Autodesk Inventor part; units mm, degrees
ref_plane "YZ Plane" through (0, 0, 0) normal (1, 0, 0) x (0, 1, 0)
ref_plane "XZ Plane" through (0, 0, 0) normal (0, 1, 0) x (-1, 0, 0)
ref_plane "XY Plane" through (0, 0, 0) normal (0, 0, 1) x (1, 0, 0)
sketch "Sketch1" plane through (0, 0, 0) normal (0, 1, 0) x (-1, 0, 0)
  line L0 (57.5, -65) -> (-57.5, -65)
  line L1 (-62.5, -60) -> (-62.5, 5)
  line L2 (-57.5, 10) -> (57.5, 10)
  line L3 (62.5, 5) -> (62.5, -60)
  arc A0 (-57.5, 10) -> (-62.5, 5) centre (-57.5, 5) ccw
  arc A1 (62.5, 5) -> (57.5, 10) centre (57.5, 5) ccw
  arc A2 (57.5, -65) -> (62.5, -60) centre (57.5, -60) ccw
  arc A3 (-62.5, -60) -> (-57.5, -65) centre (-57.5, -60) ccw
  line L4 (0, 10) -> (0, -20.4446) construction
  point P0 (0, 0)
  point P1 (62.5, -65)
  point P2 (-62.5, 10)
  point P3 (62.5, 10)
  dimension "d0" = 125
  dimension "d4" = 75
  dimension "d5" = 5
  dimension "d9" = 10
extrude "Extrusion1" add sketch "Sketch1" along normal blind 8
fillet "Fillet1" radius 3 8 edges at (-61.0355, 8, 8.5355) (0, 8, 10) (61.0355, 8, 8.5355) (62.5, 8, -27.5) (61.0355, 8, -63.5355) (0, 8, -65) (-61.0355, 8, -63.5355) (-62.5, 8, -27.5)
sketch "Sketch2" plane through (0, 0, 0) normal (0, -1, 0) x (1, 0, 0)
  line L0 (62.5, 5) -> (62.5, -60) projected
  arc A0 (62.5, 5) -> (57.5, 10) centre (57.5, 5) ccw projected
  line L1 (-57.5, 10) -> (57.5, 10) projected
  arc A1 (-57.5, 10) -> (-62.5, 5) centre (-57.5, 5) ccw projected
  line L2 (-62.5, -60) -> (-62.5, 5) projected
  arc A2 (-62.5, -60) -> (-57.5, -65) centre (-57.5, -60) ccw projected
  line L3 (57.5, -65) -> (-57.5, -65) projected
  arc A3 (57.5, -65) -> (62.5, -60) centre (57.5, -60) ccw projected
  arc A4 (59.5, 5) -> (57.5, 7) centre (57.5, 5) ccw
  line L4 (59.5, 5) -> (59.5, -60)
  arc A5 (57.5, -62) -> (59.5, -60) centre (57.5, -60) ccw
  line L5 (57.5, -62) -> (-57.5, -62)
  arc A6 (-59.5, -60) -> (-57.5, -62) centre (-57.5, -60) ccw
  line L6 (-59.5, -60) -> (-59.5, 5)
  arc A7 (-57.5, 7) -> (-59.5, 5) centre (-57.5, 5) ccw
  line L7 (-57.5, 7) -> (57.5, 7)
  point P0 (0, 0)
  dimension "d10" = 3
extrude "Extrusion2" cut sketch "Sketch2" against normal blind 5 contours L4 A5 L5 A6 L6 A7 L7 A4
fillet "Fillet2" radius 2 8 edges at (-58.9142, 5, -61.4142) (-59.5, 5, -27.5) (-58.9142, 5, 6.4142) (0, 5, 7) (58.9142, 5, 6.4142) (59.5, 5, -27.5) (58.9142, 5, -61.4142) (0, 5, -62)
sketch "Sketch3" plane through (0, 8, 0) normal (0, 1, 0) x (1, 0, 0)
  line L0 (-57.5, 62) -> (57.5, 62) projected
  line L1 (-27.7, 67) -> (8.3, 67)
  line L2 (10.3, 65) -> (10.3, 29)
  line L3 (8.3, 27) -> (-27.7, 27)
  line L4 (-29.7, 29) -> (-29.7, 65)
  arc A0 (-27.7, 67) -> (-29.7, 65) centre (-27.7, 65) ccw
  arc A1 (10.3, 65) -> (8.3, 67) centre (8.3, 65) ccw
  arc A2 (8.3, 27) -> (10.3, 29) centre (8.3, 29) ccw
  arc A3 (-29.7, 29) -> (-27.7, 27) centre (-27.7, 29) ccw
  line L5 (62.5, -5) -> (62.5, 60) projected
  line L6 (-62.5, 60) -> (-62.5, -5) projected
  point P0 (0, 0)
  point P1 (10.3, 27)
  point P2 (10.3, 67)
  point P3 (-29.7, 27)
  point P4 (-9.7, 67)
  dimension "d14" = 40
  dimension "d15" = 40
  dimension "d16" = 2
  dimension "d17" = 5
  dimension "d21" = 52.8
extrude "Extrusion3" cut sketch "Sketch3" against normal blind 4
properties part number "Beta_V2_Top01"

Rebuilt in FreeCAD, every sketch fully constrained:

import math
import FreeCAD as App
import Part
import Sketcher


def edges_at(feature, points):
    """Names of the edges that pass closest to the given points."""
    edges = feature.Shape.Edges
    near = lambda p: min(range(len(edges)), key=lambda i: edges[i].distToShape(Part.Vertex(*p))[0])
    return sorted({f"Edge{near(p) + 1}" for p in points})

doc = App.newDocument("Part")
body = doc.addObject("PartDesign::Body", "Body")

sketch1 = body.newObject("Sketcher::SketchObject", "Sketch")
sketch1.AttachmentSupport = (doc.getObject("XZ_Plane"), [""])
sketch1.MapMode = "FlatFace"
sketch1.addGeometry(Part.LineSegment(App.Vector(58, -65, 0), App.Vector(-58, -65, 0)), False)
sketch1.addGeometry(Part.ArcOfCircle(Part.Circle(App.Vector(-58, -60, 0), App.Vector(0, 0, 1), 5), math.radians(180), math.radians(270)), False)
sketch1.addGeometry(Part.LineSegment(App.Vector(-62, -60, 0), App.Vector(-62, 5, 0)), False)
sketch1.addGeometry(Part.ArcOfCircle(Part.Circle(App.Vector(-58, 5, 0), App.Vector(0, 0, 1), 5), math.radians(90), math.radians(180)), False)
sketch1.addGeometry(Part.LineSegment(App.Vector(-58, 10, 0), App.Vector(58, 10, 0)), False)
sketch1.addGeometry(Part.ArcOfCircle(Part.Circle(App.Vector(58, 5, 0), App.Vector(0, 0, 1), 5), math.radians(0), math.radians(90)), False)
sketch1.addGeometry(Part.LineSegment(App.Vector(62, 5, 0), App.Vector(62, -60, 0)), False)
sketch1.addGeometry(Part.ArcOfCircle(Part.Circle(App.Vector(58, -60, 0), App.Vector(0, 0, 1), 5), math.radians(-90), math.radians(0)), False)
sketch1.addConstraint(Sketcher.Constraint("Tangent", 0, 2, 1, 2))
sketch1.addConstraint(Sketcher.Constraint("Tangent", 1, 1, 2, 1))
sketch1.addConstraint(Sketcher.Constraint("Tangent", 2, 2, 3, 2))
sketch1.addConstraint(Sketcher.Constraint("Tangent", 3, 1, 4, 1))
sketch1.addConstraint(Sketcher.Constraint("Tangent", 4, 2, 5, 2))
sketch1.addConstraint(Sketcher.Constraint("Tangent", 5, 1, 6, 1))
sketch1.addConstraint(Sketcher.Constraint("Tangent", 6, 2, 7, 2))
sketch1.addConstraint(Sketcher.Constraint("Tangent", 7, 1, 0, 1))
sketch1.addConstraint(Sketcher.Constraint("Horizontal", 0))
sketch1.addConstraint(Sketcher.Constraint("Vertical", 2))
sketch1.addConstraint(Sketcher.Constraint("Horizontal", 4))
sketch1.addConstraint(Sketcher.Constraint("Vertical", 6))
sketch1.addConstraint(Sketcher.Constraint("Equal", 1, 3))
sketch1.addConstraint(Sketcher.Constraint("Equal", 3, 5))
sketch1.addConstraint(Sketcher.Constraint("Equal", 5, 7))
sketch1.addConstraint(Sketcher.Constraint("Radius", 1, 5.0))
sketch1.addConstraint(Sketcher.Constraint("DistanceY", -1, 1, 3, 3, 5.0))
sketch1.addConstraint(Sketcher.Constraint("DistanceY", 0, 2, 3, 1, 75.0))
sketch1.addConstraint(Sketcher.Constraint("DistanceX", 0, 2, 0, 1, 115.0))
sketch1.addConstraint(Sketcher.Constraint("DistanceX", 1, 3, -1, 1, 57.5))
pad1 = body.newObject("PartDesign::Pad", "Pad")
pad1.Profile = sketch1
pad1.Length = 8
pad1.Reversed = True
doc.recompute()

fillet = body.newObject("PartDesign::Fillet", "Fillet")
fillet.Base = (pad1, edges_at(pad1, [
    (-61.035, 8, 8.536),
    (0, 8, 10),
    (61.035, 8, 8.536),
    (62.5, 8, -27.5),
    (61.035, 8, -63.535),
    (0, 8, -65),
    (-61.035, 8, -63.535),
    (-62.5, 8, -27.5),
]))
fillet.Radius = 3

sketch2 = body.newObject("Sketcher::SketchObject", "Sketch001")
sketch2.AttachmentSupport = (doc.getObject("XZ_Plane"), [""])
sketch2.MapMode = "FlatFace"
sketch2.addGeometry(Part.LineSegment(App.Vector(59.5, -60, 0), App.Vector(59.5, 5, 0)), False)
sketch2.addGeometry(Part.ArcOfCircle(Part.Circle(App.Vector(57.5, 5, 0), App.Vector(0, 0, 1), 2), math.radians(0), math.radians(90)), False)
sketch2.addGeometry(Part.LineSegment(App.Vector(57.5, 7, 0), App.Vector(-57.5, 7, 0)), False)
sketch2.addGeometry(Part.ArcOfCircle(Part.Circle(App.Vector(-57.5, 5, 0), App.Vector(0, 0, 1), 2), math.radians(90), math.radians(180)), False)
sketch2.addGeometry(Part.LineSegment(App.Vector(-59.5, 5, 0), App.Vector(-59.5, -60, 0)), False)
sketch2.addGeometry(Part.ArcOfCircle(Part.Circle(App.Vector(-57.5, -60, 0), App.Vector(0, 0, 1), 2), math.radians(180), math.radians(270)), False)
sketch2.addGeometry(Part.LineSegment(App.Vector(-57.5, -62, 0), App.Vector(57.5, -62, 0)), False)
sketch2.addGeometry(Part.ArcOfCircle(Part.Circle(App.Vector(57.5, -60, 0), App.Vector(0, 0, 1), 2), math.radians(-90), math.radians(0)), False)
sketch2.addConstraint(Sketcher.Constraint("Tangent", 0, 2, 1, 1))
sketch2.addConstraint(Sketcher.Constraint("Tangent", 1, 2, 2, 1))
sketch2.addConstraint(Sketcher.Constraint("Tangent", 2, 2, 3, 1))
sketch2.addConstraint(Sketcher.Constraint("Tangent", 3, 2, 4, 1))
sketch2.addConstraint(Sketcher.Constraint("Tangent", 4, 2, 5, 1))
sketch2.addConstraint(Sketcher.Constraint("Tangent", 5, 2, 6, 1))
sketch2.addConstraint(Sketcher.Constraint("Tangent", 6, 2, 7, 1))
sketch2.addConstraint(Sketcher.Constraint("Tangent", 7, 2, 0, 1))
sketch2.addConstraint(Sketcher.Constraint("Vertical", 0))
sketch2.addConstraint(Sketcher.Constraint("Horizontal", 2))
sketch2.addConstraint(Sketcher.Constraint("Vertical", 4))
sketch2.addConstraint(Sketcher.Constraint("Horizontal", 6))
sketch2.addConstraint(Sketcher.Constraint("Equal", 1, 3))
sketch2.addConstraint(Sketcher.Constraint("Equal", 3, 5))
sketch2.addConstraint(Sketcher.Constraint("Equal", 5, 7))
sketch2.addConstraint(Sketcher.Constraint("Radius", 1, 2.0))
sketch2.addConstraint(Sketcher.Constraint("DistanceX", 2, 2, 2, 1, 115.0))
sketch2.addConstraint(Sketcher.Constraint("DistanceY", 0, 1, 0, 2, 65.0))
sketch2.addConstraint(Sketcher.Constraint("DistanceY", -1, 1, 1, 3, 5.0))
sketch2.addConstraint(Sketcher.Constraint("DistanceX", -1, 1, 1, 3, 57.5))
pocket1 = body.newObject("PartDesign::Pocket", "Pocket")
pocket1.Profile = sketch2
pocket1.Length = 5
doc.recompute()

fillet2 = body.newObject("PartDesign::Fillet", "Fillet001")
fillet2.Base = (pocket1, edges_at(pocket1, [
    (-58.914, 5, -61.414),
    (-59.5, 5, -27.5),
    (-58.914, 5, 6.414),
    (0, 5, 7),
    (58.914, 5, 6.414),
    (59.5, 5, -27.5),
    (58.914, 5, -61.414),
    (0, 5, -62),
]))
fillet2.Radius = 2

sketch3 = body.newObject("Sketcher::SketchObject", "Sketch002")
sketch3.AttachmentSupport = (doc.getObject("XZ_Plane"), [""])
sketch3.MapMode = "FlatFace"
sketch3.AttachmentOffset = App.Placement(App.Vector(0, 0, -8), App.Rotation())
sketch3.addGeometry(Part.LineSegment(App.Vector(-29.7, -65, 0), App.Vector(-29.7, -29, 0)), False)
sketch3.addGeometry(Part.ArcOfCircle(Part.Circle(App.Vector(-27.7, -29, 0), App.Vector(0, 0, 1), 2), math.radians(90), math.radians(180)), False)
sketch3.addGeometry(Part.LineSegment(App.Vector(-27.7, -27, 0), App.Vector(8.3, -27, 0)), False)
sketch3.addGeometry(Part.ArcOfCircle(Part.Circle(App.Vector(8.3, -29, 0), App.Vector(0, 0, 1), 2), math.radians(0), math.radians(90)), False)
sketch3.addGeometry(Part.LineSegment(App.Vector(10.3, -29, 0), App.Vector(10.3, -65, 0)), False)
sketch3.addGeometry(Part.ArcOfCircle(Part.Circle(App.Vector(8.3, -65, 0), App.Vector(0, 0, 1), 2), math.radians(-90), math.radians(0)), False)
sketch3.addGeometry(Part.LineSegment(App.Vector(8.3, -67, 0), App.Vector(-27.7, -67, 0)), False)
sketch3.addGeometry(Part.ArcOfCircle(Part.Circle(App.Vector(-27.7, -65, 0), App.Vector(0, 0, 1), 2), math.radians(180), math.radians(270)), False)
sketch3.addConstraint(Sketcher.Constraint("Tangent", 0, 2, 1, 2))
sketch3.addConstraint(Sketcher.Constraint("Tangent", 1, 1, 2, 1))
sketch3.addConstraint(Sketcher.Constraint("Tangent", 2, 2, 3, 2))
sketch3.addConstraint(Sketcher.Constraint("Tangent", 3, 1, 4, 1))
sketch3.addConstraint(Sketcher.Constraint("Tangent", 4, 2, 5, 2))
sketch3.addConstraint(Sketcher.Constraint("Tangent", 5, 1, 6, 1))
sketch3.addConstraint(Sketcher.Constraint("Tangent", 6, 2, 7, 2))
sketch3.addConstraint(Sketcher.Constraint("Tangent", 7, 1, 0, 1))
sketch3.addConstraint(Sketcher.Constraint("Vertical", 0))
sketch3.addConstraint(Sketcher.Constraint("Horizontal", 2))
sketch3.addConstraint(Sketcher.Constraint("Vertical", 4))
sketch3.addConstraint(Sketcher.Constraint("Horizontal", 6))
sketch3.addConstraint(Sketcher.Constraint("Equal", 1, 3))
sketch3.addConstraint(Sketcher.Constraint("Equal", 3, 5))
sketch3.addConstraint(Sketcher.Constraint("Equal", 5, 7))
sketch3.addConstraint(Sketcher.Constraint("Equal", 6, 0))
sketch3.addConstraint(Sketcher.Constraint("Radius", 1, 2.0))
sketch3.addConstraint(Sketcher.Constraint("DistanceX", 2, 1, 2, 2, 36.0))
sketch3.addConstraint(Sketcher.Constraint("DistanceY", 1, 3, -1, 1, 29.0))
sketch3.addConstraint(Sketcher.Constraint("DistanceX", 1, 3, -1, 1, 27.7))
pocket2 = body.newObject("PartDesign::Pocket", "Pocket001")
pocket2.Profile = sketch3
pocket2.Length = 4
pocket2.Reversed = True

doc.recompute()
